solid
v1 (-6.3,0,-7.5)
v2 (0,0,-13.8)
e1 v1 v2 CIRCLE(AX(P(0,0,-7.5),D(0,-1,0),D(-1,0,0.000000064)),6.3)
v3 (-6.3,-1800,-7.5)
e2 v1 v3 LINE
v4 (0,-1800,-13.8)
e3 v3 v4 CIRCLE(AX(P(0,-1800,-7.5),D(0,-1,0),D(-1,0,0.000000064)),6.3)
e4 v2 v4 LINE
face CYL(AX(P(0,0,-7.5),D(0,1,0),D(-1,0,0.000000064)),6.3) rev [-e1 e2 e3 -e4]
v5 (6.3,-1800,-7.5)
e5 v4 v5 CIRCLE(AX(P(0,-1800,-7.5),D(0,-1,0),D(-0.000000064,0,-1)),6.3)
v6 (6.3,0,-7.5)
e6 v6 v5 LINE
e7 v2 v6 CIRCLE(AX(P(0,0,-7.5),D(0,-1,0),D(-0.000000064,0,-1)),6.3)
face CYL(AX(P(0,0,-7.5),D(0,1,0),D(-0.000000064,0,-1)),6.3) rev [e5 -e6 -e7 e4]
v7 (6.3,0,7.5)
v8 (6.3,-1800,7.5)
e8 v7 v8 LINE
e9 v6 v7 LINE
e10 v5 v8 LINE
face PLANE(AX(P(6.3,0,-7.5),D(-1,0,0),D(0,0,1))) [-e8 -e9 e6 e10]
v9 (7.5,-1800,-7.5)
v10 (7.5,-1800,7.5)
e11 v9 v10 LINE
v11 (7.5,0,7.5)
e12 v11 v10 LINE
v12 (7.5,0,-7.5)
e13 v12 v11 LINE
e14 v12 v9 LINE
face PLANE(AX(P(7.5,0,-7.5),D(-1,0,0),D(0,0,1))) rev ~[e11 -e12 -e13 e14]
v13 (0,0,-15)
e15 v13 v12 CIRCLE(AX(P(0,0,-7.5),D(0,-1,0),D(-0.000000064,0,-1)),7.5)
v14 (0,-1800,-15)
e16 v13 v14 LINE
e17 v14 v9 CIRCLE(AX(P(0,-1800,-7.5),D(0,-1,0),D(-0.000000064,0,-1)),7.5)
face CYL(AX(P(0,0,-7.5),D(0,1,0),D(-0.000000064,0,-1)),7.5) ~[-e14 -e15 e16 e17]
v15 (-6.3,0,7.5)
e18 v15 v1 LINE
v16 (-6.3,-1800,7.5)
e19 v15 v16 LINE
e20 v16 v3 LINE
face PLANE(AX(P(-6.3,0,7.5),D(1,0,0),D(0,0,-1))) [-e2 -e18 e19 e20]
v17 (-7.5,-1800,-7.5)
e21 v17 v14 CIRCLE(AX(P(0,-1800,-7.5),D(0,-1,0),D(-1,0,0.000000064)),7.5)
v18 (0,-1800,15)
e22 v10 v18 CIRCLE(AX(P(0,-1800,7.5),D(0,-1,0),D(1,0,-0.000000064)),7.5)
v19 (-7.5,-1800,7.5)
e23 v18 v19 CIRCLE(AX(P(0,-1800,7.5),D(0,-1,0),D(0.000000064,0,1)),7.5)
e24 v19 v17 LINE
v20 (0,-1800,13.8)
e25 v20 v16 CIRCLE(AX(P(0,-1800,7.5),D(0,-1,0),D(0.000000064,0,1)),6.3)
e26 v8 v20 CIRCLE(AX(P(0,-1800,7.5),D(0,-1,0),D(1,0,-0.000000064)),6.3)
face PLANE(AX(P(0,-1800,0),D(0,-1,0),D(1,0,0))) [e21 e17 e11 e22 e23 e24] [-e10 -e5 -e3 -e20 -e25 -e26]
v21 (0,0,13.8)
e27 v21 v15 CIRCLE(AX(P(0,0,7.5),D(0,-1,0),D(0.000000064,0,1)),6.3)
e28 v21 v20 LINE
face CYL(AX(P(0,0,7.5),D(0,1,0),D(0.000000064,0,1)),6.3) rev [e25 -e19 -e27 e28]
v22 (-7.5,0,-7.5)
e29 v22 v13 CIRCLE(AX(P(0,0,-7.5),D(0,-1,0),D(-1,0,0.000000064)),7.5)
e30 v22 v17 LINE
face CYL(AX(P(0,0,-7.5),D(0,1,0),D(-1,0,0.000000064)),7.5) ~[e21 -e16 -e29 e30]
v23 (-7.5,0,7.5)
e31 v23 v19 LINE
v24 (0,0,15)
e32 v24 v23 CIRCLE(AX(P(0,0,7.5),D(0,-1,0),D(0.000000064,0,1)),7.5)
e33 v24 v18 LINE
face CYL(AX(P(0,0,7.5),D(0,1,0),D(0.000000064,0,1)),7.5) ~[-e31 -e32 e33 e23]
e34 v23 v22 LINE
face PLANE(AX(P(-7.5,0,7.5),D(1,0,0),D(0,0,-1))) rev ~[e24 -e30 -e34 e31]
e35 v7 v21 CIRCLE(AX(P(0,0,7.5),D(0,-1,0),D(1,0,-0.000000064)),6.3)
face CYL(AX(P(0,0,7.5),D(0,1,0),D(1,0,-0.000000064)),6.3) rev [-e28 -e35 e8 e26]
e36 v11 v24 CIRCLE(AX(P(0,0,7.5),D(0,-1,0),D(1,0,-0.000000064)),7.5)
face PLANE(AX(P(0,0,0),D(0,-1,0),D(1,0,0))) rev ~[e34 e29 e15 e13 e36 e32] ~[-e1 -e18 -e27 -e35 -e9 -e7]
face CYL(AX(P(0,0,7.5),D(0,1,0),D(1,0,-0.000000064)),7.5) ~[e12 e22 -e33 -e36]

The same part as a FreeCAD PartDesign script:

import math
import FreeCAD as App
import Part
import Sketcher

V = App.Vector


def faces_at(feature, points):
    """Names of the faces that lie closest to the given points."""
    faces = feature.Shape.Faces
    near = lambda p: min(range(len(faces)), key=lambda i: faces[i].distToShape(Part.Vertex(*p))[0])
    return sorted({f"Face{near(p) + 1}" for p in points})

doc = App.newDocument("Part")
body = doc.addObject("PartDesign::Body", "Body")

sketch1 = body.newObject("Sketcher::SketchObject", "Sketch")
sketch1.AttachmentSupport = (doc.getObject("XZ_Plane"), [""])
sketch1.MapMode = "FlatFace"
sketch1.addGeometry(Part.ArcOfCircle(Part.Circle(V(0, 7.5, 0), V(0, 0, 1), 7.5), math.radians(89.999996), math.radians(180.000004)), False)
sketch1.addGeometry(Part.LineSegment(V(-7.5, 7.5, 0), V(-7.5, -7.5, 0)), False)
sketch1.addGeometry(Part.ArcOfCircle(Part.Circle(V(0, -7.5, 0), V(0, 0, 1), 7.5), math.radians(179.999996), math.radians(270.000004)), False)
sketch1.addGeometry(Part.ArcOfCircle(Part.Circle(V(0, -7.5, 0), V(0, 0, 1), 7.5), math.radians(-90.000004), math.radians(0.000004)), False)
sketch1.addGeometry(Part.LineSegment(V(7.5, -7.5, 0), V(7.5, 7.5, 0)), False)
sketch1.addGeometry(Part.ArcOfCircle(Part.Circle(V(0, 7.5, 0), V(0, 0, 1), 7.5), math.radians(-0.000004), math.radians(90.000004)), False)
sketch1.addConstraint(Sketcher.Constraint("Tangent", 0, 2, 1, 1))
sketch1.addConstraint(Sketcher.Constraint("Tangent", 1, 2, 2, 1))
sketch1.addConstraint(Sketcher.Constraint("Tangent", 2, 2, 3, 1))
sketch1.addConstraint(Sketcher.Constraint("Tangent", 3, 2, 4, 1))
sketch1.addConstraint(Sketcher.Constraint("Tangent", 4, 2, 5, 1))
sketch1.addConstraint(Sketcher.Constraint("Tangent", 5, 2, 0, 1))
sketch1.addConstraint(Sketcher.Constraint("Vertical", 1))
sketch1.addConstraint(Sketcher.Constraint("Vertical", 4))
sketch1.addConstraint(Sketcher.Constraint("Equal", 0, 2))
sketch1.addConstraint(Sketcher.Constraint("Equal", 2, 3))
sketch1.addConstraint(Sketcher.Constraint("Symmetric", 0, 3, 2, 3, -1, 1))
sketch1.addConstraint(Sketcher.Constraint("PointOnObject", 2, 2, -2))
sketch1.addConstraint(Sketcher.Constraint("PointOnObject", 5, 2, -2))
sketch1.addConstraint(Sketcher.Constraint("Radius", 0, 7.5))
sketch1.addConstraint(Sketcher.Constraint("DistanceY", 1, 2, 1, 1, 15.0))
pad1 = body.newObject("PartDesign::Pad", "Pad")
pad1.Profile = sketch1
pad1.Length = 1800
doc.recompute()

thickness = body.newObject("PartDesign::Thickness", "Thickness")
thickness.Base = (pad1, faces_at(pad1, [(0, -1800, 0), (0, 0, 0)]))
thickness.Value = 1.2
thickness.Reversed = True
thickness.Join = "Arc"

doc.recompute()
